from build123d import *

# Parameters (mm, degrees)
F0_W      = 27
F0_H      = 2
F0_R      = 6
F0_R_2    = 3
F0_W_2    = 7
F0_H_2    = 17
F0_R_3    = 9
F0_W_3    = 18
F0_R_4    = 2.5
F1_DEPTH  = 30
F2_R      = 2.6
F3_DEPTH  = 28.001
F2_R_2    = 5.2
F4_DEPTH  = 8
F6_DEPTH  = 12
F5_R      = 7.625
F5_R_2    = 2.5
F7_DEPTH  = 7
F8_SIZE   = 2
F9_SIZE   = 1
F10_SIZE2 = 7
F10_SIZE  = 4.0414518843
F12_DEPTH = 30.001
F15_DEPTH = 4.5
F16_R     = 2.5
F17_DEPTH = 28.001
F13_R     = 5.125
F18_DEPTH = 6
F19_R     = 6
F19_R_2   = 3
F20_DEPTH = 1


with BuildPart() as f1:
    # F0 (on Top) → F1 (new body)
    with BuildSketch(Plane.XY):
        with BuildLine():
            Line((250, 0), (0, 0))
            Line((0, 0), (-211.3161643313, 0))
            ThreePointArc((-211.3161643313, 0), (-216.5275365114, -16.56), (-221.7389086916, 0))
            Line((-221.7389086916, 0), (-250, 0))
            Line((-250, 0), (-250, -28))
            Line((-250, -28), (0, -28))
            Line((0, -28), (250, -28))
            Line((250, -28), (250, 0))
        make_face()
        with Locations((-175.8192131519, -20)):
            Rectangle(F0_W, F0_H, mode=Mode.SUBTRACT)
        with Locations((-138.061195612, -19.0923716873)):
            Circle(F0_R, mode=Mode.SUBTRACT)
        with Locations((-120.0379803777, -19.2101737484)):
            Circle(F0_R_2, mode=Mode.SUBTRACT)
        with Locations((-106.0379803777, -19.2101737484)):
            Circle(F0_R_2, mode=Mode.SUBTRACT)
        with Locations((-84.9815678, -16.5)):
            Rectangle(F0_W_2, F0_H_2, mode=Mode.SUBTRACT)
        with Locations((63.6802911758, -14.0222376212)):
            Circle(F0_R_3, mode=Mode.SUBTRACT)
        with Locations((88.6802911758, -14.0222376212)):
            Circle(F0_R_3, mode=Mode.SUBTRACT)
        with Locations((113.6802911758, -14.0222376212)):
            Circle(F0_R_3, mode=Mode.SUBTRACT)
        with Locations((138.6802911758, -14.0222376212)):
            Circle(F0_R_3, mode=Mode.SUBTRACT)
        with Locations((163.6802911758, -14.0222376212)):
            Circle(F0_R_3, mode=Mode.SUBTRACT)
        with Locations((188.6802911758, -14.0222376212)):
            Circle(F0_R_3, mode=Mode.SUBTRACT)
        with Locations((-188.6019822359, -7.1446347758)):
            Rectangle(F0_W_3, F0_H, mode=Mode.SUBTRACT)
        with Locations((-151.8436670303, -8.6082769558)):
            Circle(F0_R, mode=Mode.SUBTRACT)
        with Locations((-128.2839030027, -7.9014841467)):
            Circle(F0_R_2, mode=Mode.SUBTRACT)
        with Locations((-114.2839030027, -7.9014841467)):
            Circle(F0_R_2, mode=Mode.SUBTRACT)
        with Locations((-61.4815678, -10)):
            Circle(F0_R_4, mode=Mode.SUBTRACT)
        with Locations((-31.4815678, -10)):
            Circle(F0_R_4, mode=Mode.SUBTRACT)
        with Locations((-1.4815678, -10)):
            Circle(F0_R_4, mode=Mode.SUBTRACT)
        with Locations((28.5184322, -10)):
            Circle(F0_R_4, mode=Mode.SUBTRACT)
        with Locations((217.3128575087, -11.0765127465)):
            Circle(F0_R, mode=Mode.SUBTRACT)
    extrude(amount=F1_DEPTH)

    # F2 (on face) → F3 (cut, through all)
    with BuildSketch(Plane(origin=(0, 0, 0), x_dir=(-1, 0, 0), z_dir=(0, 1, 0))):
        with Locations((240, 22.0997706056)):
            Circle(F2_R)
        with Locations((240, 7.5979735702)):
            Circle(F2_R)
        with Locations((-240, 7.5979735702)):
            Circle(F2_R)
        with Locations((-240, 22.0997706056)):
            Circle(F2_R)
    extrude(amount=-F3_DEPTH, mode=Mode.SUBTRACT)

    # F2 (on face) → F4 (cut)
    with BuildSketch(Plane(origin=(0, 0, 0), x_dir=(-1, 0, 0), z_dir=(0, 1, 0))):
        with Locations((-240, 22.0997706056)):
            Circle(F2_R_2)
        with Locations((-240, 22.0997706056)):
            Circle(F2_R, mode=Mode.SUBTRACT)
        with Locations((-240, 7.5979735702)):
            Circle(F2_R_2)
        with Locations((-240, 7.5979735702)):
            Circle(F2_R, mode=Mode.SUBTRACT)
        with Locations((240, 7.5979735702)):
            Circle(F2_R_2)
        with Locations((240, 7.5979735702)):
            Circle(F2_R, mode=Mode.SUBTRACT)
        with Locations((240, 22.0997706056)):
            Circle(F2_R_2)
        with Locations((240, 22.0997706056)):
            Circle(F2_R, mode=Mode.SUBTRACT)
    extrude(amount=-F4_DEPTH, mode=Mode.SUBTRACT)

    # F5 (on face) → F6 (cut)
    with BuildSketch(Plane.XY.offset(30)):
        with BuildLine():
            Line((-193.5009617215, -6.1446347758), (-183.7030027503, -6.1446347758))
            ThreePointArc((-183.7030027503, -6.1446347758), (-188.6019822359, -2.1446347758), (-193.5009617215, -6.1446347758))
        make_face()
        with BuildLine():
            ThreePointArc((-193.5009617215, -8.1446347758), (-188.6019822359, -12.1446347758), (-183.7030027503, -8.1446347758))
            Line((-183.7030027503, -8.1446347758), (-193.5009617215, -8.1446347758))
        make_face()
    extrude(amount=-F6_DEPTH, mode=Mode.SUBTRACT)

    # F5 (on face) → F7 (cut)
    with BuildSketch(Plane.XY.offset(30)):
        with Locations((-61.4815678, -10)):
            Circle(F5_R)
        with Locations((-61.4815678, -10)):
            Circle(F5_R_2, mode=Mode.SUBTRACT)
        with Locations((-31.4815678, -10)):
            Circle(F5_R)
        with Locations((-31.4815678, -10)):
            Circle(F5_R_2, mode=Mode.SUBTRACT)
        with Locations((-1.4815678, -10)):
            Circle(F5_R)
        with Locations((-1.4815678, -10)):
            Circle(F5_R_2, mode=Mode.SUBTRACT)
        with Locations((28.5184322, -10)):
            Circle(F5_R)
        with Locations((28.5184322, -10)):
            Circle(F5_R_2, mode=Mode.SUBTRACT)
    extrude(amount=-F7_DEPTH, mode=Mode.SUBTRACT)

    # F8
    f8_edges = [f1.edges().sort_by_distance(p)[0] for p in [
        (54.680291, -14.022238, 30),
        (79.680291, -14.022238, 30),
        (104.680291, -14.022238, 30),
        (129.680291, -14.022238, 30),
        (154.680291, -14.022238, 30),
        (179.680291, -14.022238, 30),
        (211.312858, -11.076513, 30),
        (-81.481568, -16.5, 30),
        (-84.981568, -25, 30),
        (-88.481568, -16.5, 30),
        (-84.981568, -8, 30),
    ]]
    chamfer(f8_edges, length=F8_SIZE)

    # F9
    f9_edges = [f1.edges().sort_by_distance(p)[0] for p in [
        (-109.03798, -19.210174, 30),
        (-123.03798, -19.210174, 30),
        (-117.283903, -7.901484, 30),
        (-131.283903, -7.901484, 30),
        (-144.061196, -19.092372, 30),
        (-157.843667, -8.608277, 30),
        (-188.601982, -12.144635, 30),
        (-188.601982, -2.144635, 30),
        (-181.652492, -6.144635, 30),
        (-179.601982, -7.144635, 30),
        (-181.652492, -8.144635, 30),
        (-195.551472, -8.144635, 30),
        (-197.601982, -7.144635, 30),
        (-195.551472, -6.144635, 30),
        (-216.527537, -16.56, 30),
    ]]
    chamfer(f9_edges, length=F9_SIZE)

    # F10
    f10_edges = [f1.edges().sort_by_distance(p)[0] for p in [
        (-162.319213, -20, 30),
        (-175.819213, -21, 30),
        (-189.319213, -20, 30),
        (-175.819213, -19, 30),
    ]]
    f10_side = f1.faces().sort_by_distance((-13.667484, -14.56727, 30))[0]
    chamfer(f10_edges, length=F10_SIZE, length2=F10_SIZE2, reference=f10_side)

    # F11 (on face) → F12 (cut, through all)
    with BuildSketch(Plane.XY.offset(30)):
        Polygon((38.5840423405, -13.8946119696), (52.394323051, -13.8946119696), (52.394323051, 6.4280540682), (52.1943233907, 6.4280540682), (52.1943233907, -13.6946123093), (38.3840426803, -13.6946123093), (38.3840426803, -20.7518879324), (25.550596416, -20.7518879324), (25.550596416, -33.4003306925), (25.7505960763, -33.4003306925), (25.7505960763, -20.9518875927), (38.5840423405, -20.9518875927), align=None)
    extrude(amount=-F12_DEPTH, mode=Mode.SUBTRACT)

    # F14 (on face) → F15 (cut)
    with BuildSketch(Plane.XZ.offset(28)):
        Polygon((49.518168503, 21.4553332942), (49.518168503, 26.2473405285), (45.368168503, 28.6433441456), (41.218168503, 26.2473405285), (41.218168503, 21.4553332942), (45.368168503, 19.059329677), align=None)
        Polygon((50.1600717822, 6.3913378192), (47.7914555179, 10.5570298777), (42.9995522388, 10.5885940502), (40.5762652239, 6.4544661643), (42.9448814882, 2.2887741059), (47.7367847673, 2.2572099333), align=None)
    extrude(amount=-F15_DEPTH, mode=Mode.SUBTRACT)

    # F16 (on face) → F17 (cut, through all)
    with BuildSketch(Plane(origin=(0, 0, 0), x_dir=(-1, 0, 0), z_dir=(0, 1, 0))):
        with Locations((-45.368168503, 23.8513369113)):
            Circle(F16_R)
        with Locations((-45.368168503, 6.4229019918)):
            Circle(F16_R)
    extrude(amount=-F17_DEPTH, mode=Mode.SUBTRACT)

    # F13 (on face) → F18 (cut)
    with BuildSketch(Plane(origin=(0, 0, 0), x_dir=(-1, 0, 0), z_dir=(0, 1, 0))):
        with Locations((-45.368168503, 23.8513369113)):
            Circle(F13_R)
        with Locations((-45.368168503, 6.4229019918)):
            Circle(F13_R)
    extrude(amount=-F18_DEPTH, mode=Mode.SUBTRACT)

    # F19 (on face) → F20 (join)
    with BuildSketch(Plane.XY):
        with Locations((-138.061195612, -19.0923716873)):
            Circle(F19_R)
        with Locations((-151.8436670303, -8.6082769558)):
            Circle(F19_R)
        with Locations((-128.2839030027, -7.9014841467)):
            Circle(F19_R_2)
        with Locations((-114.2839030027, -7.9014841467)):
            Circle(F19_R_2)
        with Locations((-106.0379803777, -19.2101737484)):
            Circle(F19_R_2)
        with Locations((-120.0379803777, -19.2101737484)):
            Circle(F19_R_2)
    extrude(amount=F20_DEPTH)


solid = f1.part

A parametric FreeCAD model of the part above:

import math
import FreeCAD as App
import Part
import Sketcher

V = App.Vector
Q = App.Units.Quantity


def edges_at(feature, points):
    """Names of the edges that pass closest to the given points."""
    edges = feature.Shape.Edges
    near = lambda p: min(range(len(edges)), key=lambda i: edges[i].distToShape(Part.Vertex(*p))[0])
    return sorted({f"Edge{near(p) + 1}" for p in points})


def add_polygon(sketch, points):
    """Adds a closed chain of lines whose ends are joined by coincident constraints."""
    first, n = sketch.GeometryCount, len(points)
    for a, b in zip(points, points[1:] + points[:1]):
        sketch.addGeometry(Part.LineSegment(App.Vector(*a, 0), App.Vector(*b, 0)), False)
    for i in range(n):
        sketch.addConstraint(Sketcher.Constraint("Coincident", first + i, 2, first + (i + 1) % n, 1))

doc = App.newDocument("Part")
params = doc.addObject("Spreadsheet::Sheet", "Params")
for row, (alias, value) in enumerate([
    ("sketch1_diameter", "12 mm"),
    ("sketch1_diameter2", "6 mm"),
    ("sketch1_diameter3", "18 mm"),
    ("sketch1_diameter4", "5 mm"),
    ("sketch1_radius", "9.1 mm"),
    ("pad1_length", "30 mm"),
    ("sketch2_diameter", "5.2 mm"),
    ("sketch3_diameter", "10.4 mm"),
    ("sketch3_diameter2", "5.2 mm"),
    ("pocket2_length", "8 mm"),
    ("sketch4_radius", "5 mm"),
    ("pocket3_length", "12 mm"),
    ("sketch5_diameter", "5 mm"),
    ("sketch5_diameter2", "15.25 mm"),
    ("pocket4_length", "7 mm"),
    ("chamfer_size", "2 mm"),
    ("chamfer2_size", "1 mm"),
    ("chamfer3_size", "4.041452 mm"),
    ("chamfer3_size2", "7 mm"),
    ("sketch6_width", "0.2 mm"),
    ("pocket6_length", "4.5 mm"),
    ("sketch8_diameter", "5 mm"),
    ("sketch9_diameter", "10.25 mm"),
    ("pocket8_length", "6 mm"),
    ("sketch10_diameter", "12 mm"),
    ("sketch10_diameter2", "6 mm"),
    ("pad2_length", "1 mm"),
], start=1):
    params.set(f"A{row}", alias)
    params.set(f"B{row}", "=" + value)
    params.setAlias(f"B{row}", alias)

body = doc.addObject("PartDesign::Body", "Body")
body.AllowCompound = True

# Sketch on XY plane
sketch1 = body.newObject("Sketcher::SketchObject", "Sketch")
sketch1.AttachmentSupport = (doc.getObject("XY_Plane"), [""])
sketch1.MapMode = "FlatFace"
sketch1.addGeometry(Part.LineSegment(V(250, 0, 0), V(-211.316164, 0, 0)), False)  # 0
sketch1.addGeometry(Part.ArcOfCircle(Part.Circle(V(-216.527537, -7.46, 0), V(0, 0, 1), 9.1), math.radians(124.937201), math.radians(415.062799)), False)  # 1
sketch1.addGeometry(Part.LineSegment(V(-221.738909, 0, 0), V(-250, 0, 0)), False)  # 2
sketch1.addGeometry(Part.LineSegment(V(-250, 0, 0), V(-250, -28, 0)), False)  # 3
sketch1.addGeometry(Part.LineSegment(V(-250, -28, 0), V(250, -28, 0)), False)  # 4
sketch1.addGeometry(Part.LineSegment(V(250, -28, 0), V(250, 0, 0)), False)  # 5
add_polygon(sketch1, [(-162.319213, -21), (-189.319213, -21), (-189.319213, -19), (-162.319213, -19)])  # lines 6-9
sketch1.addGeometry(Part.Circle(V(-138.061196, -19.092372, 0), V(0, 0, 1), 6), False)  # 10
sketch1.addGeometry(Part.Circle(V(-120.03798, -19.210174, 0), V(0, 0, 1), 3), False)  # 11
sketch1.addGeometry(Part.Circle(V(-106.03798, -19.210174, 0), V(0, 0, 1), 3), False)  # 12
add_polygon(sketch1, [(-81.481568, -25), (-88.481568, -25), (-88.481568, -8), (-81.481568, -8)])  # lines 13-16
sketch1.addGeometry(Part.Circle(V(63.680291, -14.022238, 0), V(0, 0, 1), 9), False)  # 17
sketch1.addGeometry(Part.Circle(V(88.680291, -14.022238, 0), V(0, 0, 1), 9), False)  # 18
sketch1.addGeometry(Part.Circle(V(113.680291, -14.022238, 0), V(0, 0, 1), 9), False)  # 19
sketch1.addGeometry(Part.Circle(V(138.680291, -14.022238, 0), V(0, 0, 1), 9), False)  # 20
sketch1.addGeometry(Part.Circle(V(163.680291, -14.022238, 0), V(0, 0, 1), 9), False)  # 21
sketch1.addGeometry(Part.Circle(V(188.680291, -14.022238, 0), V(0, 0, 1), 9), False)  # 22
sketch1.addGeometry(Part.Circle(V(-151.843667, -8.608277, 0), V(0, 0, 1), 6), False)  # 23
sketch1.addGeometry(Part.Circle(V(-61.481568, -10, 0), V(0, 0, 1), 2.5), False)  # 24
sketch1.addGeometry(Part.Circle(V(-31.481568, -10, 0), V(0, 0, 1), 2.5), False)  # 25
sketch1.addGeometry(Part.Circle(V(-1.481568, -10, 0), V(0, 0, 1), 2.5), False)  # 26
add_polygon(sketch1, [(-179.601982, -8.144635), (-197.601982, -8.144635), (-197.601982, -6.144635), (-179.601982, -6.144635)])  # lines 27-30
sketch1.addGeometry(Part.Circle(V(-128.283903, -7.901484, 0), V(0, 0, 1), 3), False)  # 31
sketch1.addGeometry(Part.Circle(V(-114.283903, -7.901484, 0), V(0, 0, 1), 3), False)  # 32
sketch1.addGeometry(Part.Circle(V(28.518432, -10, 0), V(0, 0, 1), 2.5), False)  # 33
sketch1.addGeometry(Part.Circle(V(217.312858, -11.076513, 0), V(0, 0, 1), 6), False)  # 34
sketch1.addConstraint(Sketcher.Constraint("Coincident", 0, 2, 1, 2))
sketch1.addConstraint(Sketcher.Constraint("Coincident", 1, 1, 2, 1))
sketch1.addConstraint(Sketcher.Constraint("Coincident", 2, 2, 3, 1))
sketch1.addConstraint(Sketcher.Constraint("Coincident", 3, 2, 4, 1))
sketch1.addConstraint(Sketcher.Constraint("Coincident", 4, 2, 5, 1))
sketch1.addConstraint(Sketcher.Constraint("Coincident", 5, 2, 0, 1))
sketch1.addConstraint(Sketcher.Constraint("Horizontal", 0))
sketch1.addConstraint(Sketcher.Constraint("Horizontal", 2))
sketch1.addConstraint(Sketcher.Constraint("Vertical", 3))
sketch1.addConstraint(Sketcher.Constraint("Horizontal", 4))
sketch1.addConstraint(Sketcher.Constraint("Vertical", 5))
sketch1.addConstraint(Sketcher.Constraint("Horizontal", 6))
sketch1.addConstraint(Sketcher.Constraint("Vertical", 7))
sketch1.addConstraint(Sketcher.Constraint("Horizontal", 8))
sketch1.addConstraint(Sketcher.Constraint("Vertical", 9))
sketch1.addConstraint(Sketcher.Constraint("Horizontal", 13))
sketch1.addConstraint(Sketcher.Constraint("Vertical", 14))
sketch1.addConstraint(Sketcher.Constraint("Horizontal", 15))
sketch1.addConstraint(Sketcher.Constraint("Vertical", 16))
sketch1.addConstraint(Sketcher.Constraint("Horizontal", 27))
sketch1.addConstraint(Sketcher.Constraint("Vertical", 28))
sketch1.addConstraint(Sketcher.Constraint("Horizontal", 29))
sketch1.addConstraint(Sketcher.Constraint("Vertical", 30))
sketch1.addConstraint(Sketcher.Constraint("Equal", 11, 12))
sketch1.addConstraint(Sketcher.Constraint("Equal", 17, 18))
sketch1.addConstraint(Sketcher.Constraint("Equal", 18, 19))
sketch1.addConstraint(Sketcher.Constraint("Equal", 19, 20))
sketch1.addConstraint(Sketcher.Constraint("Equal", 20, 21))
sketch1.addConstraint(Sketcher.Constraint("Equal", 21, 22))
sketch1.addConstraint(Sketcher.Constraint("Equal", 10, 23))
sketch1.addConstraint(Sketcher.Constraint("Equal", 24, 25))
sketch1.addConstraint(Sketcher.Constraint("Equal", 25, 26))
sketch1.addConstraint(Sketcher.Constraint("Equal", 12, 31))
sketch1.addConstraint(Sketcher.Constraint("Equal", 31, 32))
sketch1.addConstraint(Sketcher.Constraint("Equal", 26, 33))
sketch1.addConstraint(Sketcher.Constraint("Equal", 23, 34))
sketch1.addConstraint(Sketcher.Constraint("Symmetric", 2, 2, 5, 2, -1, 1))
sketch1.addConstraint(Sketcher.Constraint("PointOnObject", 0, 2, -1))
sketch1.addConstraint(Sketcher.Constraint("Horizontal", 11, 3, 12, 3))
sketch1.addConstraint(Sketcher.Constraint("Horizontal", 17, 3, 18, 3))
sketch1.addConstraint(Sketcher.Constraint("Horizontal", 18, 3, 19, 3))
sketch1.addConstraint(Sketcher.Constraint("Horizontal", 19, 3, 20, 3))
sketch1.addConstraint(Sketcher.Constraint("Horizontal", 20, 3, 21, 3))
sketch1.addConstraint(Sketcher.Constraint("Horizontal", 21, 3, 22, 3))
sketch1.addConstraint(Sketcher.Constraint("Horizontal", 24, 3, 25, 3))
sketch1.addConstraint(Sketcher.Constraint("Horizontal", 25, 3, 26, 3))
sketch1.addConstraint(Sketcher.Constraint("Horizontal", 31, 3, 32, 3))
sketch1.addConstraint(Sketcher.Constraint("Horizontal", 26, 3, 33, 3))
sketch1.addConstraint(Sketcher.Constraint("Equal", 9, 28))
sketch1.addConstraint(Sketcher.Constraint("Diameter", 10, Q("12 mm")))
sketch1.addConstraint(Sketcher.Constraint("Diameter", 11, Q("6 mm")))
sketch1.addConstraint(Sketcher.Constraint("Diameter", 17, Q("18 mm")))
sketch1.addConstraint(Sketcher.Constraint("Diameter", 24, Q("5 mm")))
sketch1.addConstraint(Sketcher.Constraint("Radius", 1, Q("9.1 mm")))
sketch1.addConstraint(Sketcher.Constraint("DistanceX", 4, 1, 4, 2, Q("500 mm")))
sketch1.addConstraint(Sketcher.Constraint("DistanceX", 6, 2, 6, 1, Q("27 mm")))
sketch1.addConstraint(Sketcher.Constraint("DistanceX", 13, 2, 13, 1, Q("7 mm")))
sketch1.addConstraint(Sketcher.Constraint("DistanceX", 27, 2, 27, 1, Q("18 mm")))
sketch1.addConstraint(Sketcher.Constraint("DistanceY", 3, 2, 3, 1, Q("28 mm")))
sketch1.addConstraint(Sketcher.Constraint("DistanceY", 7, 1, 7, 2, Q("2 mm")))
sketch1.addConstraint(Sketcher.Constraint("DistanceY", 14, 1, 14, 2, Q("17 mm")))
sketch1.addConstraint(Sketcher.Constraint("DistanceY", 24, 3, -1, 1, Q("10 mm")))
sketch1.addConstraint(Sketcher.Constraint("DistanceY", 6, 2, -1, 1, Q("21 mm")))
sketch1.addConstraint(Sketcher.Constraint("DistanceY", 13, 2, -1, 1, Q("25 mm")))
sketch1.addConstraint(Sketcher.Constraint("DistanceX", 11, 3, 12, 3, Q("14 mm")))
sketch1.addConstraint(Sketcher.Constraint("DistanceX", 17, 3, 18, 3, Q("25 mm")))
sketch1.addConstraint(Sketcher.Constraint("DistanceX", 18, 3, 19, 3, Q("25 mm")))
sketch1.addConstraint(Sketcher.Constraint("DistanceX", 19, 3, 20, 3, Q("25 mm")))
sketch1.addConstraint(Sketcher.Constraint("DistanceX", 20, 3, 21, 3, Q("25 mm")))
sketch1.addConstraint(Sketcher.Constraint("DistanceX", 21, 3, 22, 3, Q("25 mm")))
sketch1.addConstraint(Sketcher.Constraint("DistanceX", 24, 3, 25, 3, Q("30 mm")))
sketch1.addConstraint(Sketcher.Constraint("DistanceX", 25, 3, 26, 3, Q("30 mm")))
sketch1.addConstraint(Sketcher.Constraint("DistanceX", 31, 3, 32, 3, Q("14 mm")))
sketch1.addConstraint(Sketcher.Constraint("DistanceX", 26, 3, 33, 3, Q("30 mm")))
sketch1.addConstraint(Sketcher.Constraint("DistanceX", 13, 2, 24, 3, Q("27 mm")))
sketch1.addConstraint(Sketcher.Constraint("DistanceY", 1, 3, -1, 1, Q("7.46 mm")))
sketch1.addConstraint(Sketcher.Constraint("DistanceX", 2, 2, 2, 1, Q("28.261091 mm")))
sketch1.addConstraint(Sketcher.Constraint("DistanceX", 23, 3, 24, 3, Q("90.362099 mm")))
sketch1.addConstraint(Sketcher.Constraint("DistanceY", 10, 3, -1, 1, Q("19.092372 mm")))
sketch1.addConstraint(Sketcher.Constraint("DistanceX", 11, 3, -1, 1, Q("120.03798 mm")))
sketch1.addConstraint(Sketcher.Constraint("DistanceX", -1, 1, 17, 3, Q("63.680291 mm")))
sketch1.addConstraint(Sketcher.Constraint("DistanceX", 1, 3, 10, 3, Q("78.466341 mm")))
sketch1.addConstraint(Sketcher.Constraint("DistanceX", 23, 3, 10, 3, Q("13.782471 mm")))
sketch1.addConstraint(Sketcher.Constraint("DistanceY", 17, 3, 23, 3, Q("5.413961 mm")))
sketch1.addConstraint(Sketcher.Constraint("DistanceY", 11, 3, 31, 3, Q("11.30869 mm")))
sketch1.addConstraint(Sketcher.Constraint("DistanceX", 0, 2, 31, 3, Q("83.032261 mm")))
sketch1.addConstraint(Sketcher.Constraint("DistanceX", 0, 2, 6, 2, Q("21.996951 mm")))
sketch1.addConstraint(Sketcher.Constraint("DistanceX", 27, 2, 7, 2, Q("8.282769 mm")))
sketch1.addConstraint(Sketcher.Constraint("DistanceY", 11, 3, -1, 1, Q("19.210174 mm")))
sketch1.addConstraint(Sketcher.Constraint("DistanceY", 17, 3, -1, 1, Q("14.022238 mm")))
sketch1.addConstraint(Sketcher.Constraint("DistanceX", -1, 1, 34, 3, Q("217.312858 mm")))
sketch1.addConstraint(Sketcher.Constraint("DistanceY", 34, 3, -1, 1, Q("11.076513 mm")))
sketch1.addConstraint(Sketcher.Constraint("DistanceY", 27, 2, -1, 1, Q("8.144635 mm")))
sketch1.setExpression("Constraints[61]", "Params.sketch1_diameter")
sketch1.setExpression("Constraints[62]", "Params.sketch1_diameter2")
sketch1.setExpression("Constraints[63]", "Params.sketch1_diameter3")
sketch1.setExpression("Constraints[64]", "Params.sketch1_diameter4")
sketch1.setExpression("Constraints[65]", "Params.sketch1_radius")
pad1 = body.newObject("PartDesign::Pad", "Pad")
pad1.Profile = sketch1
pad1.setExpression("Length", "Params.pad1_length")

# Sketch on XZ plane
sketch2 = body.newObject("Sketcher::SketchObject", "Sketch001")
sketch2.AttachmentSupport = (doc.getObject("XZ_Plane"), [""])
sketch2.MapMode = "FlatFace"
sketch2.addGeometry(Part.Circle(V(-240, 22.099771, 0), V(0, 0, 1), 2.6), False)
sketch2.addGeometry(Part.Circle(V(-240, 7.597974, 0), V(0, 0, 1), 2.6), False)
sketch2.addGeometry(Part.Circle(V(240, 7.597974, 0), V(0, 0, 1), 2.6), False)
sketch2.addGeometry(Part.Circle(V(240, 22.099771, 0), V(0, 0, 1), 2.6), False)
sketch2.addConstraint(Sketcher.Constraint("Equal", 0, 1))
sketch2.addConstraint(Sketcher.Constraint("Equal", 1, 2))
sketch2.addConstraint(Sketcher.Constraint("Equal", 2, 3))
sketch2.addConstraint(Sketcher.Constraint("Symmetric", 1, 3, 2, 3, -2))
sketch2.addConstraint(Sketcher.Constraint("Symmetric", 0, 3, 3, 3, -2))
sketch2.addConstraint(Sketcher.Constraint("Vertical", 0, 3, 1, 3))
sketch2.addConstraint(Sketcher.Constraint("Diameter", 0, Q("5.2 mm")))
sketch2.addConstraint(Sketcher.Constraint("DistanceX", 0, 3, -1, 1, Q("240 mm")))
sketch2.addConstraint(Sketcher.Constraint("DistanceY", -1, 1, 0, 3, Q("22.099771 mm")))
sketch2.addConstraint(Sketcher.Constraint("DistanceY", -1, 1, 1, 3, Q("7.597974 mm")))
sketch2.setExpression("Constraints[6]", "Params.sketch2_diameter")
pocket1 = body.newObject("PartDesign::Pocket", "Pocket")
pocket1.Profile = sketch2
pocket1.Type = "ThroughAll"
pocket1.Reversed = True

# Sketch on XZ plane
sketch3 = body.newObject("Sketcher::SketchObject", "Sketch002")
sketch3.AttachmentSupport = (doc.getObject("XZ_Plane"), [""])
sketch3.MapMode = "FlatFace"
sketch3.addGeometry(Part.Circle(V(240, 22.099771, 0), V(0, 0, 1), 5.2), False)
sketch3.addGeometry(Part.Circle(V(240, 22.099771, 0), V(0, 0, 1), 2.6), False)
sketch3.addGeometry(Part.Circle(V(240, 7.597974, 0), V(0, 0, 1), 5.2), False)
sketch3.addGeometry(Part.Circle(V(240, 7.597974, 0), V(0, 0, 1), 2.6), False)
sketch3.addGeometry(Part.Circle(V(-240, 7.597974, 0), V(0, 0, 1), 5.2), False)
sketch3.addGeometry(Part.Circle(V(-240, 7.597974, 0), V(0, 0, 1), 2.6), False)
sketch3.addGeometry(Part.Circle(V(-240, 22.099771, 0), V(0, 0, 1), 5.2), False)
sketch3.addGeometry(Part.Circle(V(-240, 22.099771, 0), V(0, 0, 1), 2.6), False)
sketch3.addConstraint(Sketcher.Constraint("Coincident", 1, 3, 0, 3))
sketch3.addConstraint(Sketcher.Constraint("Coincident", 3, 3, 2, 3))
sketch3.addConstraint(Sketcher.Constraint("Coincident", 5, 3, 4, 3))
sketch3.addConstraint(Sketcher.Constraint("Coincident", 7, 3, 6, 3))
sketch3.addConstraint(Sketcher.Constraint("Equal", 0, 2))
sketch3.addConstraint(Sketcher.Constraint("Equal", 1, 3))
sketch3.addConstraint(Sketcher.Constraint("Equal", 2, 4))
sketch3.addConstraint(Sketcher.Constraint("Equal", 3, 5))
sketch3.addConstraint(Sketcher.Constraint("Equal", 4, 6))
sketch3.addConstraint(Sketcher.Constraint("Equal", 5, 7))
sketch3.addConstraint(Sketcher.Constraint("Symmetric", 2, 3, 4, 3, -2))
sketch3.addConstraint(Sketcher.Constraint("Symmetric", 0, 3, 6, 3, -2))
sketch3.addConstraint(Sketcher.Constraint("Vertical", 1, 3, 2, 3))
sketch3.addConstraint(Sketcher.Constraint("Diameter", 0, Q("10.4 mm")))
sketch3.addConstraint(Sketcher.Constraint("Diameter", 1, Q("5.2 mm")))
sketch3.addConstraint(Sketcher.Constraint("DistanceX", -1, 1, 0, 3, Q("240 mm")))
sketch3.addConstraint(Sketcher.Constraint("DistanceY", -1, 1, 0, 3, Q("22.099771 mm")))
sketch3.addConstraint(Sketcher.Constraint("DistanceY", -1, 1, 2, 3, Q("7.597974 mm")))
sketch3.setExpression("Constraints[13]", "Params.sketch3_diameter")
sketch3.setExpression("Constraints[14]", "Params.sketch3_diameter2")
pocket2 = body.newObject("PartDesign::Pocket", "Pocket001")
pocket2.Profile = sketch3
pocket2.setExpression("Length", "Params.pocket2_length")
pocket2.Reversed = True

# Sketch on XY plane
sketch4 = body.newObject("Sketcher::SketchObject", "Sketch003")
sketch4.AttachmentSupport = (doc.getObject("XY_Plane"), [""])
sketch4.MapMode = "FlatFace"
sketch4.AttachmentOffset = App.Placement(V(0, 0, 30), App.Rotation())
sketch4.addGeometry(Part.LineSegment(V(-193.500962, -6.144635, 0), V(-183.703003, -6.144635, 0)), False)
sketch4.addGeometry(Part.ArcOfCircle(Part.Circle(V(-188.601982, -7.144635, 0), V(0, 0, 1), 5), math.radians(11.536959), math.radians(168.463041)), False)
sketch4.addGeometry(Part.ArcOfCircle(Part.Circle(V(-188.601982, -7.144635, 0), V(0, 0, 1), 5), math.radians(-168.463041), math.radians(-11.536959)), False)
sketch4.addGeometry(Part.LineSegment(V(-183.703003, -8.144635, 0), V(-193.500962, -8.144635, 0)), False)
sketch4.addConstraint(Sketcher.Constraint("Coincident", 0, 1, 1, 2))
sketch4.addConstraint(Sketcher.Constraint("Coincident", 1, 1, 0, 2))
sketch4.addConstraint(Sketcher.Constraint("Coincident", 2, 1, 3, 2))
sketch4.addConstraint(Sketcher.Constraint("Coincident", 3, 1, 2, 2))
sketch4.addConstraint(Sketcher.Constraint("Horizontal", 0))
sketch4.addConstraint(Sketcher.Constraint("Horizontal", 3))
sketch4.addConstraint(Sketcher.Constraint("Coincident", 2, 3, 1, 3))
sketch4.addConstraint(Sketcher.Constraint("Equal", 1, 2))
sketch4.addConstraint(Sketcher.Constraint("Vertical", 0, 1, 2, 1))
sketch4.addConstraint(Sketcher.Constraint("Radius", 1, Q("5 mm")))
sketch4.addConstraint(Sketcher.Constraint("DistanceY", 1, 3, 0, 1, Q("1 mm")))
sketch4.addConstraint(Sketcher.Constraint("DistanceX", 0, 1, -1, 1, Q("193.500962 mm")))
sketch4.addConstraint(Sketcher.Constraint("DistanceY", 1, 3, -1, 1, Q("7.144635 mm")))
sketch4.setExpression("Constraints[9]", "Params.sketch4_radius")
pocket3 = body.newObject("PartDesign::Pocket", "Pocket002")
pocket3.Profile = sketch4
pocket3.setExpression("Length", "Params.pocket3_length")

# Sketch on XY plane
sketch5 = body.newObject("Sketcher::SketchObject", "Sketch004")
sketch5.AttachmentSupport = (doc.getObject("XY_Plane"), [""])
sketch5.MapMode = "FlatFace"
sketch5.AttachmentOffset = App.Placement(V(0, 0, 30), App.Rotation())
sketch5.addGeometry(Part.Circle(V(-61.481568, -10, 0), V(0, 0, 1), 7.625), False)
sketch5.addGeometry(Part.Circle(V(-61.481568, -10, 0), V(0, 0, 1), 2.5), False)
sketch5.addGeometry(Part.Circle(V(-31.481568, -10, 0), V(0, 0, 1), 7.625), False)
sketch5.addGeometry(Part.Circle(V(-31.481568, -10, 0), V(0, 0, 1), 2.5), False)
sketch5.addGeometry(Part.Circle(V(-1.481568, -10, 0), V(0, 0, 1), 7.625), False)
sketch5.addGeometry(Part.Circle(V(-1.481568, -10, 0), V(0, 0, 1), 2.5), False)
sketch5.addGeometry(Part.Circle(V(28.518432, -10, 0), V(0, 0, 1), 7.625), False)
sketch5.addGeometry(Part.Circle(V(28.518432, -10, 0), V(0, 0, 1), 2.5), False)
sketch5.addConstraint(Sketcher.Constraint("Coincident", 1, 3, 0, 3))
sketch5.addConstraint(Sketcher.Constraint("Coincident", 3, 3, 2, 3))
sketch5.addConstraint(Sketcher.Constraint("Coincident", 5, 3, 4, 3))
sketch5.addConstraint(Sketcher.Constraint("Coincident", 7, 3, 6, 3))
sketch5.addConstraint(Sketcher.Constraint("Equal", 0, 2))
sketch5.addConstraint(Sketcher.Constraint("Equal", 1, 3))
sketch5.addConstraint(Sketcher.Constraint("Equal", 2, 4))
sketch5.addConstraint(Sketcher.Constraint("Equal", 3, 5))
sketch5.addConstraint(Sketcher.Constraint("Equal", 4, 6))
sketch5.addConstraint(Sketcher.Constraint("Equal", 5, 7))
sketch5.addConstraint(Sketcher.Constraint("Horizontal", 1, 3, 2, 3))
sketch5.addConstraint(Sketcher.Constraint("Horizontal", 3, 3, 4, 3))
sketch5.addConstraint(Sketcher.Constraint("Horizontal", 5, 3, 6, 3))
sketch5.addConstraint(Sketcher.Constraint("Diameter", 1, Q("5 mm")))
sketch5.addConstraint(Sketcher.Constraint("Diameter", 0, Q("15.25 mm")))
sketch5.addConstraint(Sketcher.Constraint("DistanceY", 0, 3, -1, 1, Q("10 mm")))
sketch5.addConstraint(Sketcher.Constraint("DistanceX", 0, 3, 2, 3, Q("30 mm")))
sketch5.addConstraint(Sketcher.Constraint("DistanceX", 2, 3, 4, 3, Q("30 mm")))
sketch5.addConstraint(Sketcher.Constraint("DistanceX", 4, 3, 6, 3, Q("30 mm")))
sketch5.addConstraint(Sketcher.Constraint("DistanceX", 0, 3, -1, 1, Q("61.481568 mm")))
sketch5.setExpression("Constraints[13]", "Params.sketch5_diameter")
sketch5.setExpression("Constraints[14]", "Params.sketch5_diameter2")
pocket4 = body.newObject("PartDesign::Pocket", "Pocket003")
pocket4.Profile = sketch5
pocket4.setExpression("Length", "Params.pocket4_length")
doc.recompute()

chamfer = body.newObject("PartDesign::Chamfer", "Chamfer")
chamfer.Base = (pocket4, edges_at(pocket4, [
    (54.68, -14.022, 30),
    (79.68, -14.022, 30),
    (104.68, -14.022, 30),
    (129.68, -14.022, 30),
    (154.68, -14.022, 30),
    (179.68, -14.022, 30),
    (211.313, -11.077, 30),
    (-81.482, -16.5, 30),
    (-84.982, -25, 30),
    (-88.482, -16.5, 30),
    (-84.982, -8, 30),
]))
chamfer.setExpression("Size", "Params.chamfer_size")
doc.recompute()

chamfer2 = body.newObject("PartDesign::Chamfer", "Chamfer001")
chamfer2.Base = (chamfer, edges_at(chamfer, [
    (-109.038, -19.21, 30),
    (-123.038, -19.21, 30),
    (-117.284, -7.901, 30),
    (-131.284, -7.901, 30),
    (-144.061, -19.092, 30),
    (-157.844, -8.608, 30),
    (-188.602, -12.145, 30),
    (-188.602, -2.145, 30),
    (-181.652, -6.145, 30),
    (-179.602, -7.145, 30),
    (-181.652, -8.145, 30),
    (-195.551, -8.145, 30),
    (-197.602, -7.145, 30),
    (-195.551, -6.145, 30),
    (-216.528, -16.56, 30),
]))
chamfer2.setExpression("Size", "Params.chamfer2_size")
doc.recompute()

chamfer3 = body.newObject("PartDesign::Chamfer", "Chamfer002")
chamfer3.Base = (chamfer2, edges_at(chamfer2, [
    (-162.319, -20, 30),
    (-175.819, -21, 30),
    (-189.319, -20, 30),
    (-175.819, -19, 30),
]))
chamfer3.ChamferType = "Two distances"
chamfer3.setExpression("Size", "Params.chamfer3_size")
chamfer3.setExpression("Size2", "Params.chamfer3_size2")

# Sketch on XY plane
sketch6 = body.newObject("Sketcher::SketchObject", "Sketch005")
sketch6.AttachmentSupport = (doc.getObject("XY_Plane"), [""])
sketch6.MapMode = "FlatFace"
sketch6.AttachmentOffset = App.Placement(V(0, 0, 30), App.Rotation())
add_polygon(sketch6, [(38.584042, -13.894612), (52.394323, -13.894612), (52.394323, 6.428054), (52.194323, 6.428054), (52.194323, -13.694612), (38.384043, -13.694612), (38.384043, -20.751888), (25.550596, -20.751888), (25.550596, -33.400331), (25.750596, -33.400331), (25.750596, -20.951888), (38.584042, -20.951888)])  # lines 0-11
sketch6.addConstraint(Sketcher.Constraint("Horizontal", 0))
sketch6.addConstraint(Sketcher.Constraint("Vertical", 1))
sketch6.addConstraint(Sketcher.Constraint("Horizontal", 2))
sketch6.addConstraint(Sketcher.Constraint("Vertical", 3))
sketch6.addConstraint(Sketcher.Constraint("Horizontal", 4))
sketch6.addConstraint(Sketcher.Constraint("Vertical", 5))
sketch6.addConstraint(Sketcher.Constraint("Horizontal", 6))
sketch6.addConstraint(Sketcher.Constraint("Vertical", 7))
sketch6.addConstraint(Sketcher.Constraint("Horizontal", 8))
sketch6.addConstraint(Sketcher.Constraint("Vertical", 9))
sketch6.addConstraint(Sketcher.Constraint("Horizontal", 10))
sketch6.addConstraint(Sketcher.Constraint("Vertical", 11))
sketch6.addConstraint(Sketcher.Constraint("Equal", 0, 4))
sketch6.addConstraint(Sketcher.Constraint("Equal", 2, 8))
sketch6.addConstraint(Sketcher.Constraint("Equal", 5, 11))
sketch6.addConstraint(Sketcher.Constraint("DistanceX", 2, 2, 2, 1, Q("0.2 mm")))
sketch6.addConstraint(Sketcher.Constraint("DistanceY", 0, 2, 3, 2, Q("0.2 mm")))
sketch6.addConstraint(Sketcher.Constraint("DistanceX", 0, 1, 0, 2, Q("13.810281 mm")))
sketch6.addConstraint(Sketcher.Constraint("DistanceX", 6, 2, 6, 1, Q("12.833446 mm")))
sketch6.addConstraint(Sketcher.Constraint("DistanceY", 1, 1, 1, 2, Q("20.322666 mm")))
sketch6.addConstraint(Sketcher.Constraint("DistanceY", 5, 2, 5, 1, Q("7.057276 mm")))
sketch6.addConstraint(Sketcher.Constraint("DistanceY", 7, 2, 7, 1, Q("12.648443 mm")))
sketch6.addConstraint(Sketcher.Constraint("DistanceY", 0, 2, -1, 1, Q("13.894612 mm")))
sketch6.addConstraint(Sketcher.Constraint("DistanceX", -1, 1, 0, 2, Q("52.394323 mm")))
sketch6.setExpression("Constraints[27]", "Params.sketch6_width")
pocket5 = body.newObject("PartDesign::Pocket", "Pocket004")
pocket5.Profile = sketch6
pocket5.Type = "ThroughAll"

# Sketch on XZ plane
sketch7 = body.newObject("Sketcher::SketchObject", "Sketch006")
sketch7.AttachmentSupport = (doc.getObject("XZ_Plane"), [""])
sketch7.MapMode = "FlatFace"
sketch7.AttachmentOffset = App.Placement(V(0, 0, 28), App.Rotation())
add_polygon(sketch7, [(49.518169, 21.455333), (49.518169, 26.247341), (45.368169, 28.643344), (41.218169, 26.247341), (41.218169, 21.455333), (45.368169, 19.05933)])  # lines 0-5
add_polygon(sketch7, [(50.160072, 6.391338), (47.791456, 10.55703), (42.999552, 10.588594), (40.576265, 6.454466), (42.944881, 2.288774), (47.736785, 2.25721)])  # lines 6-11
sketch7.addConstraint(Sketcher.Constraint("Vertical", 0))
sketch7.addConstraint(Sketcher.Constraint("Vertical", 3))
sketch7.addConstraint(Sketcher.Constraint("Parallel", 1, 4))
sketch7.addConstraint(Sketcher.Constraint("Parallel", 2, 5))
sketch7.addConstraint(Sketcher.Constraint("Parallel", 6, 9))
sketch7.addConstraint(Sketcher.Constraint("Parallel", 7, 10))
sketch7.addConstraint(Sketcher.Constraint("Parallel", 8, 11))
sketch7.addConstraint(Sketcher.Constraint("Horizontal", 0, 2, 2, 2))
sketch7.addConstraint(Sketcher.Constraint("Horizontal", 3, 2, 5, 2))
sketch7.addConstraint(Sketcher.Constraint("Vertical", 1, 2, 4, 2))
sketch7.addConstraint(Sketcher.Constraint("Equal", 5, 6))
sketch7.addConstraint(Sketcher.Constraint("Equal", 6, 7))
sketch7.addConstraint(Sketcher.Constraint("Equal", 7, 8))
sketch7.addConstraint(Sketcher.Constraint("Equal", 8, 9))
sketch7.addConstraint(Sketcher.Constraint("Angle", 1, Q("150 deg")))
sketch7.addConstraint(Sketcher.Constraint("DistanceX", 2, 2, 0, 2, Q("8.3 mm")))
sketch7.addConstraint(Sketcher.Constraint("DistanceY", 6, 2, 4, 2, Q("8.5023 mm")))
sketch7.addConstraint(Sketcher.Constraint("DistanceY", 0, 1, 0, 2, Q("4.792007 mm")))
sketch7.addConstraint(Sketcher.Constraint("DistanceX", -1, 1, 0, 2, Q("49.518169 mm")))
sketch7.addConstraint(Sketcher.Constraint("DistanceY", -1, 1, 0, 2, Q("26.247341 mm")))
sketch7.addConstraint(Sketcher.Constraint("DistanceX", -1, 1, 9, 2, Q("42.944881 mm")))
sketch7.addConstraint(Sketcher.Constraint("DistanceY", -1, 1, 10, 2, Q("2.25721 mm")))
sketch7.addConstraint(Sketcher.Constraint("DistanceX", -1, 1, 11, 2, Q("50.160072 mm")))
sketch7.addConstraint(Sketcher.Constraint("DistanceY", 7, 2, 3, 2, Q("10.866739 mm")))
pocket6 = body.newObject("PartDesign::Pocket", "Pocket005")
pocket6.Profile = sketch7
pocket6.setExpression("Length", "Params.pocket6_length")

# Sketch on XZ plane
sketch8 = body.newObject("Sketcher::SketchObject", "Sketch007")
sketch8.AttachmentSupport = (doc.getObject("XZ_Plane"), [""])
sketch8.MapMode = "FlatFace"
sketch8.addGeometry(Part.Circle(V(45.368169, 23.851337, 0), V(0, 0, 1), 2.5), False)
sketch8.addGeometry(Part.Circle(V(45.368169, 6.422902, 0), V(0, 0, 1), 2.5), False)
sketch8.addConstraint(Sketcher.Constraint("Equal", 0, 1))
sketch8.addConstraint(Sketcher.Constraint("Vertical", 0, 3, 1, 3))
sketch8.addConstraint(Sketcher.Constraint("Diameter", 0, Q("5 mm")))
sketch8.addConstraint(Sketcher.Constraint("DistanceY", -1, 1, 1, 3, Q("6.422902 mm")))
sketch8.addConstraint(Sketcher.Constraint("DistanceX", -1, 1, 0, 3, Q("45.368169 mm")))
sketch8.addConstraint(Sketcher.Constraint("DistanceY", -1, 1, 0, 3, Q("23.851337 mm")))
sketch8.setExpression("Constraints[2]", "Params.sketch8_diameter")
pocket7 = body.newObject("PartDesign::Pocket", "Pocket006")
pocket7.Profile = sketch8
pocket7.Type = "ThroughAll"
pocket7.Reversed = True

# Sketch on XZ plane
sketch9 = body.newObject("Sketcher::SketchObject", "Sketch008")
sketch9.AttachmentSupport = (doc.getObject("XZ_Plane"), [""])
sketch9.MapMode = "FlatFace"
sketch9.addGeometry(Part.Circle(V(45.368169, 23.851337, 0), V(0, 0, 1), 5.125), False)
sketch9.addGeometry(Part.Circle(V(45.368169, 6.422902, 0), V(0, 0, 1), 5.125), False)
sketch9.addConstraint(Sketcher.Constraint("Equal", 0, 1))
sketch9.addConstraint(Sketcher.Constraint("Vertical", 0, 3, 1, 3))
sketch9.addConstraint(Sketcher.Constraint("Diameter", 0, Q("10.25 mm")))
sketch9.addConstraint(Sketcher.Constraint("DistanceY", -1, 1, 1, 3, Q("6.422902 mm")))
sketch9.addConstraint(Sketcher.Constraint("DistanceX", -1, 1, 0, 3, Q("45.368169 mm")))
sketch9.addConstraint(Sketcher.Constraint("DistanceY", -1, 1, 0, 3, Q("23.851337 mm")))
sketch9.setExpression("Constraints[2]", "Params.sketch9_diameter")
pocket8 = body.newObject("PartDesign::Pocket", "Pocket007")
pocket8.Profile = sketch9
pocket8.setExpression("Length", "Params.pocket8_length")
pocket8.Reversed = True

# Sketch on XY plane
sketch10 = body.newObject("Sketcher::SketchObject", "Sketch009")
sketch10.AttachmentSupport = (doc.getObject("XY_Plane"), [""])
sketch10.MapMode = "FlatFace"
sketch10.addGeometry(Part.Circle(V(-138.061196, -19.092372, 0), V(0, 0, 1), 6), False)
sketch10.addGeometry(Part.Circle(V(-151.843667, -8.608277, 0), V(0, 0, 1), 6), False)
sketch10.addGeometry(Part.Circle(V(-128.283903, -7.901484, 0), V(0, 0, 1), 3), False)
sketch10.addGeometry(Part.Circle(V(-114.283903, -7.901484, 0), V(0, 0, 1), 3), False)
sketch10.addGeometry(Part.Circle(V(-106.03798, -19.210174, 0), V(0, 0, 1), 3), False)
sketch10.addGeometry(Part.Circle(V(-120.03798, -19.210174, 0), V(0, 0, 1), 3), False)
sketch10.addConstraint(Sketcher.Constraint("Equal", 0, 1))
sketch10.addConstraint(Sketcher.Constraint("Equal", 2, 3))
sketch10.addConstraint(Sketcher.Constraint("Equal", 3, 4))
sketch10.addConstraint(Sketcher.Constraint("Equal", 4, 5))
sketch10.addConstraint(Sketcher.Constraint("Horizontal", 2, 3, 3, 3))
sketch10.addConstraint(Sketcher.Constraint("Horizontal", 4, 3, 5, 3))
sketch10.addConstraint(Sketcher.Constraint("Diameter", 0, Q("12 mm")))
sketch10.addConstraint(Sketcher.Constraint("Diameter", 2, Q("6 mm")))
sketch10.addConstraint(Sketcher.Constraint("DistanceX", 2, 3, 3, 3, Q("14 mm")))
sketch10.addConstraint(Sketcher.Constraint("DistanceX", 5, 3, 4, 3, Q("14 mm")))
sketch10.addConstraint(Sketcher.Constraint("DistanceY", 0, 3, -1, 1, Q("19.092372 mm")))
sketch10.addConstraint(Sketcher.Constraint("DistanceX", 4, 3, -1, 1, Q("106.03798 mm")))
sketch10.addConstraint(Sketcher.Constraint("DistanceX", 1, 3, 0, 3, Q("13.782471 mm")))
sketch10.addConstraint(Sketcher.Constraint("DistanceY", 4, 3, 3, 3, Q("11.30869 mm")))
sketch10.addConstraint(Sketcher.Constraint("DistanceX", 0, 3, -1, 1, Q("138.061196 mm")))
sketch10.addConstraint(Sketcher.Constraint("DistanceY", 1, 3, -1, 1, Q("8.608277 mm")))
sketch10.addConstraint(Sketcher.Constraint("DistanceX", 2, 3, -1, 1, Q("128.283903 mm")))
sketch10.addConstraint(Sketcher.Constraint("DistanceY", 2, 3, -1, 1, Q("7.901484 mm")))
sketch10.setExpression("Constraints[6]", "Params.sketch10_diameter")
sketch10.setExpression("Constraints[7]", "Params.sketch10_diameter2")
pad2 = body.newObject("PartDesign::Pad", "Pad001")
pad2.Profile = sketch10
pad2.setExpression("Length", "Params.pad2_length")

doc.recompute()
